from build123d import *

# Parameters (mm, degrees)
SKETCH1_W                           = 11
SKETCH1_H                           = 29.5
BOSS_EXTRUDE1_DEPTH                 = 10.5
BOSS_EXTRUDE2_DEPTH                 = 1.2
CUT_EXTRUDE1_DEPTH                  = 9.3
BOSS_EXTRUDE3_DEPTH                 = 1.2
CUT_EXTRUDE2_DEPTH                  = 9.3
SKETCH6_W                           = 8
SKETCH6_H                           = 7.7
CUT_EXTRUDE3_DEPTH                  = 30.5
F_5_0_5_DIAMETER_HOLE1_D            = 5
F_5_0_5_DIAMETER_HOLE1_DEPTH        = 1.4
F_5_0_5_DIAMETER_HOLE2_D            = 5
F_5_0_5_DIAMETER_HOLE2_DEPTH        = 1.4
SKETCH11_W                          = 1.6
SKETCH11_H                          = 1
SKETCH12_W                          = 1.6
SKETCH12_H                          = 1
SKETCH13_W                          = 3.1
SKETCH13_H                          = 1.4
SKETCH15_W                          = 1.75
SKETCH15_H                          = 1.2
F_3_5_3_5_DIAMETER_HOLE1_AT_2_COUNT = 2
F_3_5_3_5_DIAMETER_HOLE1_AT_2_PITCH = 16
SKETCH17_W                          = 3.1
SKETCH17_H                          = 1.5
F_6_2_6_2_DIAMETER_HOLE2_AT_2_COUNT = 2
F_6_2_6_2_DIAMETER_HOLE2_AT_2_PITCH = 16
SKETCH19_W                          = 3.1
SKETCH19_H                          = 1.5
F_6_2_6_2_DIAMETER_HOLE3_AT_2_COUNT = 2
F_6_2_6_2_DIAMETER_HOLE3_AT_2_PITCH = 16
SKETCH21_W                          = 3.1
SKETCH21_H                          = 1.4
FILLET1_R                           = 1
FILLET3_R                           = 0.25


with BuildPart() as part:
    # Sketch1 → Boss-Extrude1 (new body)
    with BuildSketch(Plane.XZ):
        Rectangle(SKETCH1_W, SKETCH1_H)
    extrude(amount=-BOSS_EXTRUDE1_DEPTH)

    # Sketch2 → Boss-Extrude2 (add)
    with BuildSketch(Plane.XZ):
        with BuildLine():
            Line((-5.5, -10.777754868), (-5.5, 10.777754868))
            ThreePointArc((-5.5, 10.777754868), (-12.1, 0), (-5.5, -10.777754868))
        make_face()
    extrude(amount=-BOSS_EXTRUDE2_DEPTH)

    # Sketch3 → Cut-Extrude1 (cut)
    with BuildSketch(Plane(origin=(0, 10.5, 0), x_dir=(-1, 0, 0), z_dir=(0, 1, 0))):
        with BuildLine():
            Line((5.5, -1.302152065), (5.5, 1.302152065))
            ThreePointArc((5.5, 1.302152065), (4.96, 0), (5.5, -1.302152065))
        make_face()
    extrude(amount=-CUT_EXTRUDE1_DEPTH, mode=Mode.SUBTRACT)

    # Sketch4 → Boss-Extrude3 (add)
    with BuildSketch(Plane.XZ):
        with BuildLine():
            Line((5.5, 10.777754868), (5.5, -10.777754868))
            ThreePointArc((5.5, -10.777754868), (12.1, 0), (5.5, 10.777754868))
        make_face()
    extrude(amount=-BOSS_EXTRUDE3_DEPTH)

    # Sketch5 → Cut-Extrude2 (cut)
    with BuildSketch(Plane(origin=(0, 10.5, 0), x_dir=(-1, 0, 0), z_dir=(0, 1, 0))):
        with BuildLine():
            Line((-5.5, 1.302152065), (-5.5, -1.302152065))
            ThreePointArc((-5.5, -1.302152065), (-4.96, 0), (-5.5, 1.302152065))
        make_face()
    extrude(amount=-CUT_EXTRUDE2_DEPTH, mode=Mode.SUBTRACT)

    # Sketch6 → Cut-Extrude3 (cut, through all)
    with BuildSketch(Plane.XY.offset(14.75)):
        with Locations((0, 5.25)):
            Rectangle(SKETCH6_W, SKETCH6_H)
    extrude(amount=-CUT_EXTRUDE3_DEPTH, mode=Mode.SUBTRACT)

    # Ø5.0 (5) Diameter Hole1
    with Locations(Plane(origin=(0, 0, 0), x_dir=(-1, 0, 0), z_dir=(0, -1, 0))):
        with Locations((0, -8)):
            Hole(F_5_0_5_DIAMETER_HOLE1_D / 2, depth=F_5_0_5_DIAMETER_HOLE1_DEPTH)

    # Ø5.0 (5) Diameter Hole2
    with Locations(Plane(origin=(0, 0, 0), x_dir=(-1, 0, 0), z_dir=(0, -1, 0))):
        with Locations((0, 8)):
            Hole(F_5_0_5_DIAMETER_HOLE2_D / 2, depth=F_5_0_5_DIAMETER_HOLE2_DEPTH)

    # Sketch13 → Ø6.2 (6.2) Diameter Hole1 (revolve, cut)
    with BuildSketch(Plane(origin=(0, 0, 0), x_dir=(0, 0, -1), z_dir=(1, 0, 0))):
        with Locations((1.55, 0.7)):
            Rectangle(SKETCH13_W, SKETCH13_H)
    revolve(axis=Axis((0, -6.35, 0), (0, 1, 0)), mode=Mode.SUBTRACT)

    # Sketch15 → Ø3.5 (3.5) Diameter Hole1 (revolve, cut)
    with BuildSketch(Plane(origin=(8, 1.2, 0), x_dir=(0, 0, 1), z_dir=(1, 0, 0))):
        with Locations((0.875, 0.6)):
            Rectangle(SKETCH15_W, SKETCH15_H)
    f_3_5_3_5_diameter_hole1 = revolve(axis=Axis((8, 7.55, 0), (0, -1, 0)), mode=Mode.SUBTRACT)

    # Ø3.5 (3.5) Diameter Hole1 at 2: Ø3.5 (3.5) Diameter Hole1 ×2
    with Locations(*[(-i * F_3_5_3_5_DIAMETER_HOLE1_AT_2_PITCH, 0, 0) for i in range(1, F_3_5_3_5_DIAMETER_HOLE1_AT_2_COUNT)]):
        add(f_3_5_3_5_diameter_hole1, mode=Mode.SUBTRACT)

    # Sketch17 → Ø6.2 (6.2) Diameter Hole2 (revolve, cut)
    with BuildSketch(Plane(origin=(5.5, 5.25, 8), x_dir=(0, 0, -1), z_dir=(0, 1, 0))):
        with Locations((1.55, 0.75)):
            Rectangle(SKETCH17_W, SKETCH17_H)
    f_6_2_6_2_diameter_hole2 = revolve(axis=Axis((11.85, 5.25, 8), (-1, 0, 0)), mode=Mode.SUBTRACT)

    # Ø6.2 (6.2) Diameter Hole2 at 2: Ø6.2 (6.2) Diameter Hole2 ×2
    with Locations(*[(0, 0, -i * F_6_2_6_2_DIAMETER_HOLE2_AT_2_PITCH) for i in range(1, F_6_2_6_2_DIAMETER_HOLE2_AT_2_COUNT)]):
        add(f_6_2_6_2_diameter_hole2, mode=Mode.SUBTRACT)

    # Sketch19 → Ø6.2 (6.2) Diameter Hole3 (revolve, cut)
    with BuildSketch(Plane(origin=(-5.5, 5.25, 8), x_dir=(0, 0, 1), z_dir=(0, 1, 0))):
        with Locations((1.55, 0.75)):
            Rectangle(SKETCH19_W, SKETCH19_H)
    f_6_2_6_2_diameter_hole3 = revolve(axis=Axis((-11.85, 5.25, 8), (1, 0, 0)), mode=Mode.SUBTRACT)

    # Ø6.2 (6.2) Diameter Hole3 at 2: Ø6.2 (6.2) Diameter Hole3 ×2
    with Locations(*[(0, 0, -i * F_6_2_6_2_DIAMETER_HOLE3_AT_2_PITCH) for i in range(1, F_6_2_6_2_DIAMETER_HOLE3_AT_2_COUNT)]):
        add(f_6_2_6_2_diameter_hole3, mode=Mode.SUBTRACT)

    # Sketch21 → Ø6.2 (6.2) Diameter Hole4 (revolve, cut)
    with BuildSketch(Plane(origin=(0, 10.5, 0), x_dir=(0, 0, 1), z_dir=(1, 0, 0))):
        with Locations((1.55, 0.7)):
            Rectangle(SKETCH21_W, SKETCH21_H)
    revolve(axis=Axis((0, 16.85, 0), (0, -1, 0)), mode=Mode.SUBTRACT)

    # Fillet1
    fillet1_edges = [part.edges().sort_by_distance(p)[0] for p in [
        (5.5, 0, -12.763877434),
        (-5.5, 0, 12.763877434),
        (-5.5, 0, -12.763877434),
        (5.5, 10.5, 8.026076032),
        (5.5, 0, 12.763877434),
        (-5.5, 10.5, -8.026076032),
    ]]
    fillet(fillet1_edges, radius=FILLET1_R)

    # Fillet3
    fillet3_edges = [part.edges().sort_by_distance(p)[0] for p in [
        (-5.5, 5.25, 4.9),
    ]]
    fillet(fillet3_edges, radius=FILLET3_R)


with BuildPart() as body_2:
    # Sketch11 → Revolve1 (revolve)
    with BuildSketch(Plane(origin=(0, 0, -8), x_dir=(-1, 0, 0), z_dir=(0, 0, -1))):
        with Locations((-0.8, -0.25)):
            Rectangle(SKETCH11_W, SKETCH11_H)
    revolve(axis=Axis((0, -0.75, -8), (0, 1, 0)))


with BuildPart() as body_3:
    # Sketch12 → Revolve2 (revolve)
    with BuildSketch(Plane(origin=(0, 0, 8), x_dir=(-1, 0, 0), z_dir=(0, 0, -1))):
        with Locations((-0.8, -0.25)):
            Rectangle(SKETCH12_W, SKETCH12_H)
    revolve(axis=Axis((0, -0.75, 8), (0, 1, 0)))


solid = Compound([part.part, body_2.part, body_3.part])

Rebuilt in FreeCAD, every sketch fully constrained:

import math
import FreeCAD as App
import Part
import Sketcher
from FreeCAD import Vector
Q = App.Units.Quantity


def edges_at(feature, points):
    """Names of the edges that pass closest to the given points."""
    edges = feature.Shape.Edges
    near = lambda p: min(range(len(edges)), key=lambda i: edges[i].distToShape(Part.Vertex(*p))[0])
    return sorted({f"Edge{near(p) + 1}" for p in points})


def add_polygon(sketch, points):
    """Adds a closed chain of lines whose ends are joined by coincident constraints."""
    first, n = sketch.GeometryCount, len(points)
    for a, b in zip(points, points[1:] + points[:1]):
        sketch.addGeometry(Part.LineSegment(App.Vector(*a, 0), App.Vector(*b, 0)), False)
    for i in range(n):
        sketch.addConstraint(Sketcher.Constraint("Coincident", first + i, 2, first + (i + 1) % n, 1))

doc = App.newDocument("Part")
params = doc.addObject("Spreadsheet::Sheet", "Params")
for row, (alias, value) in enumerate([
    ("sketch1_width", "11 mm"),
    ("sketch1_height", "29.5 mm"),
    ("pad1_length", "10.5 mm"),
    ("sketch2_radius", "12.1 mm"),
    ("pad2_length", "1.2 mm"),
    ("sketch3_radius", "1.84 mm"),
    ("pocket1_length", "9.3 mm"),
    ("sketch4_radius", "12.1 mm"),
    ("pad3_length", "1.2 mm"),
    ("sketch5_radius", "1.84 mm"),
    ("pocket2_length", "9.3 mm"),
    ("sketch6_width", "8 mm"),
    ("sketch6_height", "7.7 mm"),
    ("sketch7_diameter", "5 mm"),
    ("hole_diameter", "5 mm"),
    ("hole_depth", "1.4 mm"),
    ("sketch8_diameter", "5 mm"),
    ("hole2_diameter", "5 mm"),
    ("hole2_depth", "1.4 mm"),
    ("sketch9_width", "1.4 mm"),
    ("sketch9_height", "3.1 mm"),
    ("groove_angle", "360 deg"),
    ("sketch10_width", "1.2 mm"),
    ("sketch10_height", "1.75 mm"),
    ("groove2_angle", "360 deg"),
    ("linearpattern_pitch", "16 mm"),
    ("sketch11_width", "1.5 mm"),
    ("sketch11_height", "3.1 mm"),
    ("groove3_angle", "360 deg"),
    ("linearpattern2_pitch", "16 mm"),
    ("sketch12_width", "1.5 mm"),
    ("sketch12_height", "3.1 mm"),
    ("groove4_angle", "360 deg"),
    ("linearpattern3_pitch", "16 mm"),
    ("sketch13_width", "1.4 mm"),
    ("sketch13_height", "3.1 mm"),
    ("groove5_angle", "360 deg"),
    ("fillet_radius", "1 mm"),
    ("fillet2_radius", "0.25 mm"),
    ("sketch14_height", "1 mm"),
    ("sketch14_width", "1.6 mm"),
    ("revolution_angle", "360 deg"),
    ("sketch15_height", "1 mm"),
    ("sketch15_width", "1.6 mm"),
    ("revolution2_angle", "360 deg"),
], start=1):
    params.set(f"A{row}", alias)
    params.set(f"B{row}", "=" + value)
    params.setAlias(f"B{row}", alias)

body = doc.addObject("PartDesign::Body", "Body")

# Sketch on XZ plane
sketch1 = body.newObject("Sketcher::SketchObject", "Sketch")
sketch1.AttachmentSupport = (doc.getObject("XZ_Plane"), [""])
sketch1.MapMode = "FlatFace"
add_polygon(sketch1, [(-6, 15), (-6, -15), (6, -15), (6, 15)])  # lines 0-3
sketch1.addConstraint([
    Sketcher.Constraint("Vertical", 0),
    Sketcher.Constraint("Horizontal", 1),
    Sketcher.Constraint("Vertical", 2),
    Sketcher.Constraint("Horizontal", 3),
    Sketcher.Constraint("Symmetric", 0, 2, 2, 2, -1, 1),
    Sketcher.Constraint("DistanceX", 1, 1, 1, 2, Q("11 mm")),
    Sketcher.Constraint("DistanceY", 0, 2, 0, 1, Q("29.5 mm")),
])
sketch1.setExpression("Constraints[9]", "Params.sketch1_width")
sketch1.setExpression("Constraints[10]", "Params.sketch1_height")
pad1 = body.newObject("PartDesign::Pad", "Pad")
pad1.Profile = sketch1
pad1.setExpression("Length", "Params.pad1_length")
pad1.Reversed = True

# Sketch on XZ plane
sketch2 = body.newObject("Sketcher::SketchObject", "Sketch001")
sketch2.AttachmentSupport = (doc.getObject("XZ_Plane"), [""])
sketch2.MapMode = "FlatFace"
sketch2.addGeometry([
    Part.LineSegment(Vector(-6, -11, 0), Vector(-6, 11, 0)),
    Part.ArcOfCircle(Part.Circle(Vector(0, 0, 0), Vector(0, 0, 1), 12), math.radians(117), math.radians(243)),
], False)
sketch2.addConstraint([
    Sketcher.Constraint("Coincident", 0, 1, 1, 2),
    Sketcher.Constraint("Coincident", 1, 1, 0, 2),
    Sketcher.Constraint("Vertical", 0),
    Sketcher.Constraint("Coincident", 1, 3, -1, 1),
    Sketcher.Constraint("Radius", 1, Q("12.1 mm")),
    Sketcher.Constraint("DistanceX", 0, 1, -1, 1, Q("5.5 mm")),
])
sketch2.setExpression("Constraints[4]", "Params.sketch2_radius")
pad2 = body.newObject("PartDesign::Pad", "Pad001")
pad2.Profile = sketch2
pad2.setExpression("Length", "Params.pad2_length")
pad2.Reversed = True

# Sketch on XZ plane
sketch3 = body.newObject("Sketcher::SketchObject", "Sketch002")
sketch3.AttachmentSupport = (doc.getObject("XZ_Plane"), [""])
sketch3.MapMode = "FlatFace"
sketch3.AttachmentOffset = App.Placement(Vector(0, 0, -10.5), App.Rotation())
sketch3.addGeometry([
    Part.LineSegment(Vector(-5.5, -1.3, 0), Vector(-5.5, 1.3, 0)),
    Part.ArcOfCircle(Part.Circle(Vector(-6.8, 0, 0), Vector(0, 0, 1), 1.8), math.radians(-45), math.radians(45)),
], False)
sketch3.addConstraint([
    Sketcher.Constraint("Coincident", 0, 1, 1, 1),
    Sketcher.Constraint("Coincident", 1, 2, 0, 2),
    Sketcher.Constraint("Vertical", 0),
    Sketcher.Constraint("PointOnObject", 1, 3, -1),
    Sketcher.Constraint("Radius", 1, Q("1.84 mm")),
    Sketcher.Constraint("DistanceX", 1, 3, -1, 1, Q("6.8 mm")),
    Sketcher.Constraint("DistanceX", 0, 1, -1, 1, Q("5.5 mm")),
])
sketch3.setExpression("Constraints[4]", "Params.sketch3_radius")
pocket1 = body.newObject("PartDesign::Pocket", "Pocket")
pocket1.Profile = sketch3
pocket1.setExpression("Length", "Params.pocket1_length")
pocket1.Reversed = True

# Sketch on XZ plane
sketch4 = body.newObject("Sketcher::SketchObject", "Sketch003")
sketch4.AttachmentSupport = (doc.getObject("XZ_Plane"), [""])
sketch4.MapMode = "FlatFace"
sketch4.addGeometry([
    Part.LineSegment(Vector(6, 11, 0), Vector(6, -11, 0)),
    Part.ArcOfCircle(Part.Circle(Vector(0, 0, 0), Vector(0, 0, 1), 12), math.radians(-63), math.radians(63)),
], False)
sketch4.addConstraint([
    Sketcher.Constraint("Coincident", 0, 1, 1, 2),
    Sketcher.Constraint("Coincident", 1, 1, 0, 2),
    Sketcher.Constraint("Vertical", 0),
    Sketcher.Constraint("Coincident", 1, 3, -1, 1),
    Sketcher.Constraint("Radius", 1, Q("12.1 mm")),
    Sketcher.Constraint("DistanceX", -1, 1, 0, 1, Q("5.5 mm")),
])
sketch4.setExpression("Constraints[4]", "Params.sketch4_radius")
pad3 = body.newObject("PartDesign::Pad", "Pad002")
pad3.Profile = sketch4
pad3.setExpression("Length", "Params.pad3_length")
pad3.Reversed = True

# Sketch on XZ plane
sketch5 = body.newObject("Sketcher::SketchObject", "Sketch004")
sketch5.AttachmentSupport = (doc.getObject("XZ_Plane"), [""])
sketch5.MapMode = "FlatFace"
sketch5.AttachmentOffset = App.Placement(Vector(0, 0, -10.5), App.Rotation())
sketch5.addGeometry([
    Part.LineSegment(Vector(5.5, 1.3, 0), Vector(5.5, -1.3, 0)),
    Part.ArcOfCircle(Part.Circle(Vector(6.8, 0, 0), Vector(0, 0, 1), 1.8), math.radians(135), math.radians(225)),
], False)
sketch5.addConstraint([
    Sketcher.Constraint("Coincident", 0, 1, 1, 1),
    Sketcher.Constraint("Coincident", 1, 2, 0, 2),
    Sketcher.Constraint("Vertical", 0),
    Sketcher.Constraint("PointOnObject", 1, 3, -1),
    Sketcher.Constraint("Radius", 1, Q("1.84 mm")),
    Sketcher.Constraint("DistanceX", -1, 1, 1, 3, Q("6.8 mm")),
    Sketcher.Constraint("DistanceX", -1, 1, 0, 1, Q("5.5 mm")),
])
sketch5.setExpression("Constraints[4]", "Params.sketch5_radius")
pocket2 = body.newObject("PartDesign::Pocket", "Pocket001")
pocket2.Profile = sketch5
pocket2.setExpression("Length", "Params.pocket2_length")
pocket2.Reversed = True

# Sketch on XY plane
sketch6 = body.newObject("Sketcher::SketchObject", "Sketch005")
sketch6.AttachmentSupport = (doc.getObject("XY_Plane"), [""])
sketch6.MapMode = "FlatFace"
sketch6.AttachmentOffset = App.Placement(Vector(0, 0, 14.75), App.Rotation())
add_polygon(sketch6, [(-4, 9), (-4, 1), (4, 1), (4, 9)])  # lines 0-3
sketch6.addConstraint([
    Sketcher.Constraint("Vertical", 0),
    Sketcher.Constraint("Horizontal", 1),
    Sketcher.Constraint("Vertical", 2),
    Sketcher.Constraint("Horizontal", 3),
    Sketcher.Constraint("DistanceX", 1, 1, 1, 2, Q("8 mm")),
    Sketcher.Constraint("DistanceY", 0, 2, 0, 1, Q("7.7 mm")),
    Sketcher.Constraint("DistanceX", 0, 2, -1, 1, Q("4 mm")),
    Sketcher.Constraint("DistanceY", -1, 1, 0, 2, Q("1.4 mm")),
])
sketch6.setExpression("Constraints[8]", "Params.sketch6_width")
sketch6.setExpression("Constraints[9]", "Params.sketch6_height")
pocket3 = body.newObject("PartDesign::Pocket", "Pocket002")
pocket3.Profile = sketch6
pocket3.Type = "ThroughAll"

# Sketch on XZ plane
sketch7 = body.newObject("Sketcher::SketchObject", "Sketch006")
sketch7.AttachmentSupport = (doc.getObject("XZ_Plane"), [""])
sketch7.MapMode = "FlatFace"
sketch7.addGeometry(Part.Circle(Vector(0, 8, 0), Vector(0, 0, 1), 2.5), False)
sketch7.addConstraint([
    Sketcher.Constraint("PointOnObject", 0, 3, -2),
    Sketcher.Constraint("Diameter", 0, Q("5 mm")),
    Sketcher.Constraint("DistanceY", -1, 1, 0, 3, Q("8 mm")),
])
sketch7.setExpression("Constraints[1]", "Params.sketch7_diameter")
doc.recompute()
hole = body.newObject("PartDesign::Hole", "Hole")
hole.Profile = sketch7
hole.ThreadType = "None"
hole.setExpression("Diameter", "Params.hole_diameter")
hole.DepthType = "Dimension"
hole.setExpression("Depth", "Params.hole_depth")
hole.DrillPoint = "Flat"

# Sketch on XZ plane
sketch8 = body.newObject("Sketcher::SketchObject", "Sketch007")
sketch8.AttachmentSupport = (doc.getObject("XZ_Plane"), [""])
sketch8.MapMode = "FlatFace"
sketch8.addGeometry(Part.Circle(Vector(0, -8, 0), Vector(0, 0, 1), 2.5), False)
sketch8.addConstraint([
    Sketcher.Constraint("PointOnObject", 0, 3, -2),
    Sketcher.Constraint("Diameter", 0, Q("5 mm")),
    Sketcher.Constraint("DistanceY", 0, 3, -1, 1, Q("8 mm")),
])
sketch8.setExpression("Constraints[1]", "Params.sketch8_diameter")
doc.recompute()
hole2 = body.newObject("PartDesign::Hole", "Hole001")
hole2.Profile = sketch8
hole2.ThreadType = "None"
hole2.setExpression("Diameter", "Params.hole2_diameter")
hole2.DepthType = "Dimension"
hole2.setExpression("Depth", "Params.hole2_depth")
hole2.DrillPoint = "Flat"

# Sketch on YZ plane
sketch9 = body.newObject("Sketcher::SketchObject", "Sketch008")
sketch9.AttachmentSupport = (doc.getObject("YZ_Plane"), [""])
sketch9.MapMode = "FlatFace"
add_polygon(sketch9, [(1.4, 0), (0, 0), (0, -3.1), (1.4, -3.1)])  # lines 0-3
sketch9.addConstraint([
    Sketcher.Constraint("Horizontal", 0),
    Sketcher.Constraint("Vertical", 1),
    Sketcher.Constraint("Horizontal", 2),
    Sketcher.Constraint("Vertical", 3),
    Sketcher.Constraint("Coincident", 0, 2, -1, 1),
    Sketcher.Constraint("DistanceX", 0, 2, 0, 1, Q("1.4 mm")),
    Sketcher.Constraint("DistanceY", 1, 2, 1, 1, Q("3.1 mm")),
])
sketch9.setExpression("Constraints[9]", "Params.sketch9_width")
sketch9.setExpression("Constraints[10]", "Params.sketch9_height")
groove = body.newObject("PartDesign::Groove", "Groove")
groove.Profile = sketch9
groove.ReferenceAxis = (sketch9, ["H_Axis"])
groove.setExpression("Angle", "Params.groove_angle")

# Sketch on YZ plane
sketch10 = body.newObject("Sketcher::SketchObject", "Sketch009")
sketch10.AttachmentSupport = (doc.getObject("YZ_Plane"), [""])
sketch10.MapMode = "FlatFace"
sketch10.AttachmentOffset = App.Placement(Vector(0, 0, 8), App.Rotation())
add_polygon(sketch10, [(0, 0), (1.2, 0), (1.2, 1.8), (0, 1.8)])  # lines 0-3
sketch10.addConstraint([
    Sketcher.Constraint("Horizontal", 0),
    Sketcher.Constraint("Vertical", 1),
    Sketcher.Constraint("Horizontal", 2),
    Sketcher.Constraint("Vertical", 3),
    Sketcher.Constraint("Coincident", 3, 2, -1, 1),
    Sketcher.Constraint("DistanceX", 0, 1, 0, 2, Q("1.2 mm")),
    Sketcher.Constraint("DistanceY", 1, 1, 1, 2, Q("1.75 mm")),
])
sketch10.setExpression("Constraints[9]", "Params.sketch10_width")
sketch10.setExpression("Constraints[10]", "Params.sketch10_height")
groove2 = body.newObject("PartDesign::Groove", "Groove001")
groove2.Profile = sketch10
groove2.ReferenceAxis = (sketch10, ["H_Axis"])
groove2.setExpression("Angle", "Params.groove2_angle")
doc.recompute()

linearpattern = body.newObject("PartDesign::LinearPattern", "LinearPattern")
linearpattern.Originals = [groove2]
linearpattern.Direction = (doc.getObject("X_Axis"), [""])
linearpattern.Mode = "offset"
linearpattern.setExpression("Offset", "Params.linearpattern_pitch")
linearpattern.Occurrences = 2
linearpattern.Reversed = True
body.Tip = linearpattern

# Sketch on XZ plane
sketch11 = body.newObject("Sketcher::SketchObject", "Sketch010")
sketch11.AttachmentSupport = (doc.getObject("XZ_Plane"), [""])
sketch11.MapMode = "FlatFace"
sketch11.AttachmentOffset = App.Placement(Vector(0, 0, -5.25), App.Rotation())
add_polygon(sketch11, [(4, 8), (5.5, 8), (5.5, 4.9), (4, 4.9)])  # lines 0-3
sketch11.addGeometry(Part.LineSegment(Vector(5.5, 8, 0), Vector(4, 8, 0)), True)  # axis
sketch11.addConstraint([
    Sketcher.Constraint("Horizontal", 0),
    Sketcher.Constraint("Vertical", 1),
    Sketcher.Constraint("Horizontal", 2),
    Sketcher.Constraint("Vertical", 3),
    Sketcher.Constraint("Horizontal", 4),
    Sketcher.Constraint("Coincident", 4, 1, 0, 2),
    Sketcher.Constraint("Vertical", 2, 2, 4, 2),
    Sketcher.Constraint("DistanceX", 0, 1, 0, 2, Q("1.5 mm")),
    Sketcher.Constraint("DistanceY", 1, 2, 1, 1, Q("3.1 mm")),
    Sketcher.Constraint("DistanceY", -1, 1, 0, 2, Q("8 mm")),
    Sketcher.Constraint("DistanceX", -1, 1, 2, 2, Q("4 mm")),
])
sketch11.setExpression("Constraints[11]", "Params.sketch11_width")
sketch11.setExpression("Constraints[12]", "Params.sketch11_height")
groove3 = body.newObject("PartDesign::Groove", "Groove002")
groove3.Profile = sketch11
groove3.ReferenceAxis = (sketch11, ["Axis0"])
groove3.setExpression("Angle", "Params.groove3_angle")
doc.recompute()

linearpattern2 = body.newObject("PartDesign::LinearPattern", "LinearPattern001")
linearpattern2.Originals = [groove3]
linearpattern2.Direction = (doc.getObject("Z_Axis"), [""])
linearpattern2.Mode = "offset"
linearpattern2.setExpression("Offset", "Params.linearpattern2_pitch")
linearpattern2.Occurrences = 2
linearpattern2.Reversed = True
body.Tip = linearpattern2

# Sketch on XZ plane
sketch12 = body.newObject("Sketcher::SketchObject", "Sketch011")
sketch12.AttachmentSupport = (doc.getObject("XZ_Plane"), [""])
sketch12.MapMode = "FlatFace"
sketch12.AttachmentOffset = App.Placement(Vector(0, 0, -5.25), App.Rotation())
add_polygon(sketch12, [(-4, 8), (-5.5, 8), (-5.5, 11.1), (-4, 11.1)])  # lines 0-3
sketch12.addGeometry(Part.LineSegment(Vector(-5.5, 8, 0), Vector(-4, 8, 0)), True)  # axis
sketch12.addConstraint([
    Sketcher.Constraint("Horizontal", 0),
    Sketcher.Constraint("Vertical", 1),
    Sketcher.Constraint("Horizontal", 2),
    Sketcher.Constraint("Vertical", 3),
    Sketcher.Constraint("Horizontal", 4),
    Sketcher.Constraint("Coincident", 4, 1, 0, 2),
    Sketcher.Constraint("Vertical", 2, 2, 4, 2),
    Sketcher.Constraint("DistanceX", 0, 2, 0, 1, Q("1.5 mm")),
    Sketcher.Constraint("DistanceY", 1, 1, 1, 2, Q("3.1 mm")),
    Sketcher.Constraint("DistanceY", -1, 1, 0, 2, Q("8 mm")),
    Sketcher.Constraint("DistanceX", 2, 2, -1, 1, Q("4 mm")),
])
sketch12.setExpression("Constraints[11]", "Params.sketch12_width")
sketch12.setExpression("Constraints[12]", "Params.sketch12_height")
groove4 = body.newObject("PartDesign::Groove", "Groove003")
groove4.Profile = sketch12
groove4.ReferenceAxis = (sketch12, ["Axis0"])
groove4.setExpression("Angle", "Params.groove4_angle")
doc.recompute()

linearpattern3 = body.newObject("PartDesign::LinearPattern", "LinearPattern002")
linearpattern3.Originals = [groove4]
linearpattern3.Direction = (doc.getObject("Z_Axis"), [""])
linearpattern3.Mode = "offset"
linearpattern3.setExpression("Offset", "Params.linearpattern3_pitch")
linearpattern3.Occurrences = 2
linearpattern3.Reversed = True
body.Tip = linearpattern3

# Sketch on YZ plane
sketch13 = body.newObject("Sketcher::SketchObject", "Sketch012")
sketch13.AttachmentSupport = (doc.getObject("YZ_Plane"), [""])
sketch13.MapMode = "FlatFace"
add_polygon(sketch13, [(9.1, 0), (10.5, 0), (10.5, 3.1), (9.1, 3.1)])  # lines 0-3
sketch13.addConstraint([
    Sketcher.Constraint("Horizontal", 0),
    Sketcher.Constraint("Vertical", 1),
    Sketcher.Constraint("Horizontal", 2),
    Sketcher.Constraint("Vertical", 3),
    Sketcher.Constraint("PointOnObject", 0, 2, -1),
    Sketcher.Constraint("DistanceX", 0, 1, 0, 2, Q("1.4 mm")),
    Sketcher.Constraint("DistanceY", 1, 1, 1, 2, Q("3.1 mm")),
    Sketcher.Constraint("DistanceX", -1, 1, 0, 2, Q("10.5 mm")),
])
sketch13.setExpression("Constraints[9]", "Params.sketch13_width")
sketch13.setExpression("Constraints[10]", "Params.sketch13_height")
groove5 = body.newObject("PartDesign::Groove", "Groove004")
groove5.Profile = sketch13
groove5.ReferenceAxis = (sketch13, ["H_Axis"])
groove5.setExpression("Angle", "Params.groove5_angle")
doc.recompute()

fillet = body.newObject("PartDesign::Fillet", "Fillet")
fillet.Base = (groove5, edges_at(groove5, [
    (5.5, 0, -12.764),
    (-5.5, 0, 12.764),
    (-5.5, 0, -12.764),
    (5.5, 10.5, 8.026),
    (5.5, 0, 12.764),
    (-5.5, 10.5, -8.026),
]))
fillet.setExpression("Radius", "Params.fillet_radius")
doc.recompute()

fillet2 = body.newObject("PartDesign::Fillet", "Fillet001")
fillet2.Base = (fillet, edges_at(fillet, [(-5.5, 5.25, 4.9)]))
fillet2.setExpression("Radius", "Params.fillet2_radius")
body2 = doc.addObject("PartDesign::Body", "Body001")

# Sketch on XY plane
sketch14 = body2.newObject("Sketcher::SketchObject", "Sketch013")
sketch14.AttachmentSupport = (doc.getObject("XY_Plane001"), [""])
sketch14.MapMode = "FlatFace"
sketch14.AttachmentOffset = App.Placement(Vector(0, 0, -8), App.Rotation())
add_polygon(sketch14, [(1.6, 0.2), (1.6, -0.8), (0, -0.8), (0, 0.2)])  # lines 0-3
sketch14.addConstraint([
    Sketcher.Constraint("Vertical", 0),
    Sketcher.Constraint("Horizontal", 1),
    Sketcher.Constraint("Vertical", 2),
    Sketcher.Constraint("Horizontal", 3),
    Sketcher.Constraint("PointOnObject", 1, 2, -2),
    Sketcher.Constraint("DistanceY", 0, 2, 0, 1, Q("1 mm")),
    Sketcher.Constraint("DistanceX", 1, 2, 1, 1, Q("1.6 mm")),
    Sketcher.Constraint("DistanceY", 0, 2, -1, 1, Q("0.75 mm")),
])
sketch14.setExpression("Constraints[9]", "Params.sketch14_height")
sketch14.setExpression("Constraints[10]", "Params.sketch14_width")
revolution = body2.newObject("PartDesign::Revolution", "Revolution")
revolution.Profile = sketch14
revolution.ReferenceAxis = (sketch14, ["V_Axis"])
revolution.setExpression("Angle", "Params.revolution_angle")
body3 = doc.addObject("PartDesign::Body", "Body002")

# Sketch on XY plane
sketch15 = body3.newObject("Sketcher::SketchObject", "Sketch014")
sketch15.AttachmentSupport = (doc.getObject("XY_Plane002"), [""])
sketch15.MapMode = "FlatFace"
sketch15.AttachmentOffset = App.Placement(Vector(0, 0, 8), App.Rotation())
add_polygon(sketch15, [(1.6, 0.2), (1.6, -0.8), (0, -0.8), (0, 0.2)])  # lines 0-3
sketch15.addConstraint([
    Sketcher.Constraint("Vertical", 0),
    Sketcher.Constraint("Horizontal", 1),
    Sketcher.Constraint("Vertical", 2),
    Sketcher.Constraint("Horizontal", 3),
    Sketcher.Constraint("PointOnObject", 1, 2, -2),
    Sketcher.Constraint("DistanceY", 0, 2, 0, 1, Q("1 mm")),
    Sketcher.Constraint("DistanceX", 1, 2, 1, 1, Q("1.6 mm")),
    Sketcher.Constraint("DistanceY", 0, 2, -1, 1, Q("0.75 mm")),
])
sketch15.setExpression("Constraints[9]", "Params.sketch15_height")
sketch15.setExpression("Constraints[10]", "Params.sketch15_width")
revolution2 = body3.newObject("PartDesign::Revolution", "Revolution001")
revolution2.Profile = sketch15
revolution2.ReferenceAxis = (sketch15, ["V_Axis"])
revolution2.setExpression("Angle", "Params.revolution2_angle")

doc.recompute()
